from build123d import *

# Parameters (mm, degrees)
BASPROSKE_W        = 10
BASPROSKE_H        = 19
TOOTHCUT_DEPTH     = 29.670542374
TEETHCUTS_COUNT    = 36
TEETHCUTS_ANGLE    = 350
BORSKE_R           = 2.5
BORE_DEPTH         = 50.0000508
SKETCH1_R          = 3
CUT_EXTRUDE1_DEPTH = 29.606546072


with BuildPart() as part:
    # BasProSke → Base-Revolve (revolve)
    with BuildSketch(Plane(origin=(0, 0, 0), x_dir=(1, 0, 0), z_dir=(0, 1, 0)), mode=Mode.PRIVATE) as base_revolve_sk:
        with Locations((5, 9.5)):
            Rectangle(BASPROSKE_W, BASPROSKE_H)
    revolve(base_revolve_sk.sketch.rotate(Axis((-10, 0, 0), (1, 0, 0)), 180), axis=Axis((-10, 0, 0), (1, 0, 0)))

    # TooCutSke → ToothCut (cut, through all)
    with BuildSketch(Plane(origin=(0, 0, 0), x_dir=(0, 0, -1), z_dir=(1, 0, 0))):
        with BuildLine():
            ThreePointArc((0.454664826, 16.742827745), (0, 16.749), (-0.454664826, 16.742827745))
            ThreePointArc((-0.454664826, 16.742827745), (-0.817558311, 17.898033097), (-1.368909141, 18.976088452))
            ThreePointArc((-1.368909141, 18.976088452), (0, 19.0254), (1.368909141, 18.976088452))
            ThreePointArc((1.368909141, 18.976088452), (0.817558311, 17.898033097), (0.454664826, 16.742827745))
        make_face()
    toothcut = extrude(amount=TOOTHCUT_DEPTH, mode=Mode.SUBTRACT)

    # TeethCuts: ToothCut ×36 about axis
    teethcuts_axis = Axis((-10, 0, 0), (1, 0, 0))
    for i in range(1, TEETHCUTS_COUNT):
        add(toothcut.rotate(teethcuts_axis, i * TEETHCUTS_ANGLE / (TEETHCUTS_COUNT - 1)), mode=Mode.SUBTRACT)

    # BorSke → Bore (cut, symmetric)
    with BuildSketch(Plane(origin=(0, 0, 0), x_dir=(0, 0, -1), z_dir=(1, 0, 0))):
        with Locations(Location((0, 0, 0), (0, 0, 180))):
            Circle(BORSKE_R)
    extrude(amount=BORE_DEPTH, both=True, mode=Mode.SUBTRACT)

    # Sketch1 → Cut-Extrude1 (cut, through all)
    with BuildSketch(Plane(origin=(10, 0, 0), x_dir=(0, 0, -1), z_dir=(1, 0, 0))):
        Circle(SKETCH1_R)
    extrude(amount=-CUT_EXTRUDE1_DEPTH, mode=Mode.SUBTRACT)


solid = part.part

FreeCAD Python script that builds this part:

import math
import FreeCAD as App
import Part
import Sketcher
from FreeCAD import Vector
Q = App.Units.Quantity

doc = App.newDocument("Part")
body = doc.addObject("PartDesign::Body", "Body")

# Sketch on XZ plane
sketch1 = doc.addObject("Sketcher::SketchObject", "Sketch")
body.addObject(sketch1)
sketch1.AttachmentSupport = (doc.XZ_Plane, [""])
sketch1.MapMode = "FlatFace"
sketch1.addGeometry(Part.LineSegment(Vector(0, -19, 0), Vector(0, 0, 0)), False)
sketch1.addGeometry(Part.LineSegment(Vector(0, 0, 0), Vector(10, 0, 0)), False)
sketch1.addGeometry(Part.LineSegment(Vector(10, 0, 0), Vector(10, -19, 0)), False)
sketch1.addGeometry(Part.LineSegment(Vector(10, -19, 0), Vector(0, -19, 0)), False)
sketch1.addConstraint(Sketcher.Constraint("Coincident", 0, 2, 1, 1))
sketch1.addConstraint(Sketcher.Constraint("Coincident", 1, 2, 2, 1))
sketch1.addConstraint(Sketcher.Constraint("Coincident", 2, 2, 3, 1))
sketch1.addConstraint(Sketcher.Constraint("Coincident", 3, 2, 0, 1))
sketch1.addConstraint(Sketcher.Constraint("Vertical", 0))
sketch1.addConstraint(Sketcher.Constraint("Horizontal", 1))
sketch1.addConstraint(Sketcher.Constraint("Vertical", 2))
sketch1.addConstraint(Sketcher.Constraint("Horizontal", 3))
sketch1.addConstraint(Sketcher.Constraint("Coincident", 0, 2, -1, 1))
sketch1.addConstraint(Sketcher.Constraint("DistanceX", 1, 1, 1, 2, Q("10 mm")))
sketch1.addConstraint(Sketcher.Constraint("DistanceY", 0, 1, 0, 2, Q("19 mm")))
revolution = doc.addObject("PartDesign::Revolution", "Revolution")
body.addObject(revolution)
revolution.Profile = sketch1
revolution.ReferenceAxis = (sketch1, ["H_Axis"])
revolution.Angle = 360

# Sketch on YZ plane
sketch2 = doc.addObject("Sketcher::SketchObject", "Sketch001")
body.addObject(sketch2)
sketch2.AttachmentSupport = (doc.YZ_Plane, [""])
sketch2.MapMode = "FlatFace"
sketch2.addGeometry(Part.ArcOfCircle(Part.Circle(Vector(0, 0, 0), Vector(0, 0, 1), 16.749), math.radians(-1.55553), math.radians(1.55553)), False)
sketch2.addGeometry(Part.ArcOfCircle(Part.Circle(Vector(15.170247, -7.480829, 0), Vector(0, 0, 1), 7.2), math.radians(58.089824), math.radians(77.384103)), False)
sketch2.addGeometry(Part.ArcOfCircle(Part.Circle(Vector(0, 0, 0), Vector(0, 0, 1), 19.0254), math.radians(-4.126092), math.radians(4.126092)), False)
sketch2.addGeometry(Part.ArcOfCircle(Part.Circle(Vector(15.170247, 7.480829, 0), Vector(0, 0, 1), 7.2), math.radians(-77.384103), math.radians(-58.089824)), False)
sketch2.addConstraint(Sketcher.Constraint("Coincident", 0, 1, 1, 2))
sketch2.addConstraint(Sketcher.Constraint("Coincident", 1, 1, 2, 1))
sketch2.addConstraint(Sketcher.Constraint("Coincident", 2, 2, 3, 2))
sketch2.addConstraint(Sketcher.Constraint("Coincident", 3, 1, 0, 2))
sketch2.addConstraint(Sketcher.Constraint("Coincident", 0, 3, -1, 1))
sketch2.addConstraint(Sketcher.Constraint("Coincident", 2, 3, -1, 1))
sketch2.addConstraint(Sketcher.Constraint("Equal", 1, 3))
sketch2.addConstraint(Sketcher.Constraint("Symmetric", 1, 3, 3, 3, -1))
sketch2.addConstraint(Sketcher.Constraint("Radius", 1, Q("7.2 mm")))
sketch2.addConstraint(Sketcher.Constraint("Radius", 0, Q("16.749 mm")))
sketch2.addConstraint(Sketcher.Constraint("Radius", 2, Q("19.0254 mm")))
sketch2.addConstraint(Sketcher.Constraint("DistanceY", 1, 3, -1, 1, Q("7.480829 mm")))
sketch2.addConstraint(Sketcher.Constraint("DistanceX", -1, 1, 1, 1, Q("18.976088 mm")))
pocket1 = doc.addObject("PartDesign::Pocket", "Pocket")
body.addObject(pocket1)
pocket1.Profile = sketch2
pocket1.Type = "ThroughAll"
pocket1.Reversed = True
doc.recompute()

polarpattern = doc.addObject("PartDesign::PolarPattern", "PolarPattern")
body.addObject(polarpattern)
polarpattern.Originals = [pocket1]
polarpattern.Axis = (doc.X_Axis, [""])
polarpattern.Angle = 360
polarpattern.Occurrences = 36
body.Tip = polarpattern

# Sketch on YZ plane
sketch3 = doc.addObject("Sketcher::SketchObject", "Sketch002")
body.addObject(sketch3)
sketch3.AttachmentSupport = (doc.YZ_Plane, [""])
sketch3.MapMode = "FlatFace"
sketch3.addGeometry(Part.Circle(Vector(0, 0, 0), Vector(0, 0, 1), 2.5), False)
sketch3.addConstraint(Sketcher.Constraint("Coincident", 0, 3, -1, 1))
sketch3.addConstraint(Sketcher.Constraint("Diameter", 0, Q("5 mm")))
pocket2 = doc.addObject("PartDesign::Pocket", "Pocket001")
body.addObject(pocket2)
pocket2.Profile = sketch3
pocket2.Length = 100.000102
pocket2.Midplane = True

# Sketch on YZ plane
sketch4 = doc.addObject("Sketcher::SketchObject", "Sketch003")
body.addObject(sketch4)
sketch4.AttachmentSupport = (doc.YZ_Plane, [""])
sketch4.MapMode = "FlatFace"
sketch4.AttachmentOffset = App.Placement(Vector(0, 0, 10), App.Rotation())
sketch4.addGeometry(Part.Circle(Vector(0, 0, 0), Vector(0, 0, 1), 3), False)
sketch4.addConstraint(Sketcher.Constraint("Coincident", 0, 3, -1, 1))
sketch4.addConstraint(Sketcher.Constraint("Diameter", 0, Q("6 mm")))
pocket3 = doc.addObject("PartDesign::Pocket", "Pocket002")
body.addObject(pocket3)
pocket3.Profile = sketch4
pocket3.Type = "ThroughAll"

doc.recompute()
